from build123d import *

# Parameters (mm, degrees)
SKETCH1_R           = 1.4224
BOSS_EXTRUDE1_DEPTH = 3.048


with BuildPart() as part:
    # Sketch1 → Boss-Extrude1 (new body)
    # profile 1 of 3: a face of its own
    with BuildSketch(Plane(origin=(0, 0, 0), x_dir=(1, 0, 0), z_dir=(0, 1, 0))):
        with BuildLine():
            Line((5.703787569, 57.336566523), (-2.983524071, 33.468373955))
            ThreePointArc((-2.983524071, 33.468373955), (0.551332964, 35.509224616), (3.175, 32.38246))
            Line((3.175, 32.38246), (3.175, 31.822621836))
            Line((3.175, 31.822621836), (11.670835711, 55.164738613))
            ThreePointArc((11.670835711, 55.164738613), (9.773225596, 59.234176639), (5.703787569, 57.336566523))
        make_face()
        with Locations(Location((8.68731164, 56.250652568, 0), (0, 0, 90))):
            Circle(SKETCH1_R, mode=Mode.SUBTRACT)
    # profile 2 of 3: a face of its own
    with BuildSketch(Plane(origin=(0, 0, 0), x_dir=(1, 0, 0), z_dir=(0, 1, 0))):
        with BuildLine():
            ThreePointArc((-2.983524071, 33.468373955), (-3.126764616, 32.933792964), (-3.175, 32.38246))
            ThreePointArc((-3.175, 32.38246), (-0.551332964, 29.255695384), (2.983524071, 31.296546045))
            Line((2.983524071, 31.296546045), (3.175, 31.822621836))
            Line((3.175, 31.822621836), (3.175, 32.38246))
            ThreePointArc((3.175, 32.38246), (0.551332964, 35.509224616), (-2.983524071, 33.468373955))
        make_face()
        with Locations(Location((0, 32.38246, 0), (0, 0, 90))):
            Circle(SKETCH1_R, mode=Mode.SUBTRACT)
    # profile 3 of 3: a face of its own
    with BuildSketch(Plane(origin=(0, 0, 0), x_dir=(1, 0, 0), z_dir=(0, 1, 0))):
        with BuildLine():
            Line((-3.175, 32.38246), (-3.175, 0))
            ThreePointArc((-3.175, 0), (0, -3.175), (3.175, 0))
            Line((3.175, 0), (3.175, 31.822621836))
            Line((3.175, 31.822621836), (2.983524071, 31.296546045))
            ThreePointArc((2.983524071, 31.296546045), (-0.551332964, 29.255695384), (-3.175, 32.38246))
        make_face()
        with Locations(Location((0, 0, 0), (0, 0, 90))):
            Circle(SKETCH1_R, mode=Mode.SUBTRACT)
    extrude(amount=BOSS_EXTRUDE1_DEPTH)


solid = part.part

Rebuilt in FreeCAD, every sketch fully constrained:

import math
import FreeCAD as App
import Part
import Sketcher
Q = App.Units.Quantity

doc = App.newDocument("Part")
body = doc.addObject("PartDesign::Body", "Body")

sketch1 = body.newObject("Sketcher::SketchObject", "Sketch")
sketch1.AttachmentSupport = (doc.getObject("XZ_Plane"), [""])
sketch1.MapMode = "FlatFace"
sketch1.addGeometry([
    Part.LineSegment(App.Vector(5.7, -57.3, 0), App.Vector(-3, -33.5, 0)),
    Part.ArcOfCircle(Part.Circle(App.Vector(0, -32.4, 0), App.Vector(0, 0, 1), 3.2), math.radians(180), math.radians(200)),
    Part.LineSegment(App.Vector(-3.2, -32.4, 0), App.Vector(-3.2, 0, 0)),
    Part.ArcOfCircle(Part.Circle(App.Vector(0, 0, 0), App.Vector(0, 0, 1), 3.2), math.radians(0), math.radians(180)),
    Part.LineSegment(App.Vector(3.2, 0, 0), App.Vector(3.2, -31.8, 0)),
    Part.LineSegment(App.Vector(3.2, -31.8, 0), App.Vector(11.7, -55.2, 0)),
    Part.ArcOfCircle(Part.Circle(App.Vector(8.7, -56.3, 0), App.Vector(0, 0, 1), 3.2), math.radians(-160), math.radians(20)),
    Part.Circle(App.Vector(8.7, -56.3, 0), App.Vector(0, 0, 1), 1.4),
    Part.Circle(App.Vector(0, -32.4, 0), App.Vector(0, 0, 1), 1.4),
    Part.Circle(App.Vector(0, 0, 0), App.Vector(0, 0, 1), 1.4),
], False)
sketch1.addConstraint([
    Sketcher.Constraint("Tangent", 0, 2, 1, 2),
    Sketcher.Constraint("Tangent", 1, 1, 2, 1),
    Sketcher.Constraint("Tangent", 2, 2, 3, 2),
    Sketcher.Constraint("Tangent", 3, 1, 4, 1),
    Sketcher.Constraint("Coincident", 4, 2, 5, 1),
    Sketcher.Constraint("Tangent", 5, 2, 6, 2),
    Sketcher.Constraint("Tangent", 6, 1, 0, 1),
    Sketcher.Constraint("Vertical", 2),
    Sketcher.Constraint("Vertical", 4),
    Sketcher.Constraint("Coincident", 3, 3, -1, 1),
    Sketcher.Constraint("Coincident", 9, 3, -1, 1),
    Sketcher.Constraint("Coincident", 7, 3, 6, 3),
    Sketcher.Constraint("Coincident", 8, 3, 1, 3),
    Sketcher.Constraint("Equal", 1, 3),
    Sketcher.Constraint("Equal", 3, 6),
    Sketcher.Constraint("Equal", 7, 8),
    Sketcher.Constraint("Equal", 8, 9),
    Sketcher.Constraint("Parallel", 0, 5),
    Sketcher.Constraint("Distance", 0, Q("1 in")),
    Sketcher.Constraint("Diameter", 7, Q("0.112 in")),
    Sketcher.Constraint("Angle", 0, Q("110 deg")),
    Sketcher.Constraint("Radius", 1, Q("0.125 in")),
    Sketcher.Constraint("DistanceY", 2, 1, 2, 2, Q("1.2749 in")),
])
pad1 = body.newObject("PartDesign::Pad", "Pad")
pad1.Profile = sketch1
pad1.Length = Q("0.12 in")
pad1.Reversed = True

doc.recompute()
